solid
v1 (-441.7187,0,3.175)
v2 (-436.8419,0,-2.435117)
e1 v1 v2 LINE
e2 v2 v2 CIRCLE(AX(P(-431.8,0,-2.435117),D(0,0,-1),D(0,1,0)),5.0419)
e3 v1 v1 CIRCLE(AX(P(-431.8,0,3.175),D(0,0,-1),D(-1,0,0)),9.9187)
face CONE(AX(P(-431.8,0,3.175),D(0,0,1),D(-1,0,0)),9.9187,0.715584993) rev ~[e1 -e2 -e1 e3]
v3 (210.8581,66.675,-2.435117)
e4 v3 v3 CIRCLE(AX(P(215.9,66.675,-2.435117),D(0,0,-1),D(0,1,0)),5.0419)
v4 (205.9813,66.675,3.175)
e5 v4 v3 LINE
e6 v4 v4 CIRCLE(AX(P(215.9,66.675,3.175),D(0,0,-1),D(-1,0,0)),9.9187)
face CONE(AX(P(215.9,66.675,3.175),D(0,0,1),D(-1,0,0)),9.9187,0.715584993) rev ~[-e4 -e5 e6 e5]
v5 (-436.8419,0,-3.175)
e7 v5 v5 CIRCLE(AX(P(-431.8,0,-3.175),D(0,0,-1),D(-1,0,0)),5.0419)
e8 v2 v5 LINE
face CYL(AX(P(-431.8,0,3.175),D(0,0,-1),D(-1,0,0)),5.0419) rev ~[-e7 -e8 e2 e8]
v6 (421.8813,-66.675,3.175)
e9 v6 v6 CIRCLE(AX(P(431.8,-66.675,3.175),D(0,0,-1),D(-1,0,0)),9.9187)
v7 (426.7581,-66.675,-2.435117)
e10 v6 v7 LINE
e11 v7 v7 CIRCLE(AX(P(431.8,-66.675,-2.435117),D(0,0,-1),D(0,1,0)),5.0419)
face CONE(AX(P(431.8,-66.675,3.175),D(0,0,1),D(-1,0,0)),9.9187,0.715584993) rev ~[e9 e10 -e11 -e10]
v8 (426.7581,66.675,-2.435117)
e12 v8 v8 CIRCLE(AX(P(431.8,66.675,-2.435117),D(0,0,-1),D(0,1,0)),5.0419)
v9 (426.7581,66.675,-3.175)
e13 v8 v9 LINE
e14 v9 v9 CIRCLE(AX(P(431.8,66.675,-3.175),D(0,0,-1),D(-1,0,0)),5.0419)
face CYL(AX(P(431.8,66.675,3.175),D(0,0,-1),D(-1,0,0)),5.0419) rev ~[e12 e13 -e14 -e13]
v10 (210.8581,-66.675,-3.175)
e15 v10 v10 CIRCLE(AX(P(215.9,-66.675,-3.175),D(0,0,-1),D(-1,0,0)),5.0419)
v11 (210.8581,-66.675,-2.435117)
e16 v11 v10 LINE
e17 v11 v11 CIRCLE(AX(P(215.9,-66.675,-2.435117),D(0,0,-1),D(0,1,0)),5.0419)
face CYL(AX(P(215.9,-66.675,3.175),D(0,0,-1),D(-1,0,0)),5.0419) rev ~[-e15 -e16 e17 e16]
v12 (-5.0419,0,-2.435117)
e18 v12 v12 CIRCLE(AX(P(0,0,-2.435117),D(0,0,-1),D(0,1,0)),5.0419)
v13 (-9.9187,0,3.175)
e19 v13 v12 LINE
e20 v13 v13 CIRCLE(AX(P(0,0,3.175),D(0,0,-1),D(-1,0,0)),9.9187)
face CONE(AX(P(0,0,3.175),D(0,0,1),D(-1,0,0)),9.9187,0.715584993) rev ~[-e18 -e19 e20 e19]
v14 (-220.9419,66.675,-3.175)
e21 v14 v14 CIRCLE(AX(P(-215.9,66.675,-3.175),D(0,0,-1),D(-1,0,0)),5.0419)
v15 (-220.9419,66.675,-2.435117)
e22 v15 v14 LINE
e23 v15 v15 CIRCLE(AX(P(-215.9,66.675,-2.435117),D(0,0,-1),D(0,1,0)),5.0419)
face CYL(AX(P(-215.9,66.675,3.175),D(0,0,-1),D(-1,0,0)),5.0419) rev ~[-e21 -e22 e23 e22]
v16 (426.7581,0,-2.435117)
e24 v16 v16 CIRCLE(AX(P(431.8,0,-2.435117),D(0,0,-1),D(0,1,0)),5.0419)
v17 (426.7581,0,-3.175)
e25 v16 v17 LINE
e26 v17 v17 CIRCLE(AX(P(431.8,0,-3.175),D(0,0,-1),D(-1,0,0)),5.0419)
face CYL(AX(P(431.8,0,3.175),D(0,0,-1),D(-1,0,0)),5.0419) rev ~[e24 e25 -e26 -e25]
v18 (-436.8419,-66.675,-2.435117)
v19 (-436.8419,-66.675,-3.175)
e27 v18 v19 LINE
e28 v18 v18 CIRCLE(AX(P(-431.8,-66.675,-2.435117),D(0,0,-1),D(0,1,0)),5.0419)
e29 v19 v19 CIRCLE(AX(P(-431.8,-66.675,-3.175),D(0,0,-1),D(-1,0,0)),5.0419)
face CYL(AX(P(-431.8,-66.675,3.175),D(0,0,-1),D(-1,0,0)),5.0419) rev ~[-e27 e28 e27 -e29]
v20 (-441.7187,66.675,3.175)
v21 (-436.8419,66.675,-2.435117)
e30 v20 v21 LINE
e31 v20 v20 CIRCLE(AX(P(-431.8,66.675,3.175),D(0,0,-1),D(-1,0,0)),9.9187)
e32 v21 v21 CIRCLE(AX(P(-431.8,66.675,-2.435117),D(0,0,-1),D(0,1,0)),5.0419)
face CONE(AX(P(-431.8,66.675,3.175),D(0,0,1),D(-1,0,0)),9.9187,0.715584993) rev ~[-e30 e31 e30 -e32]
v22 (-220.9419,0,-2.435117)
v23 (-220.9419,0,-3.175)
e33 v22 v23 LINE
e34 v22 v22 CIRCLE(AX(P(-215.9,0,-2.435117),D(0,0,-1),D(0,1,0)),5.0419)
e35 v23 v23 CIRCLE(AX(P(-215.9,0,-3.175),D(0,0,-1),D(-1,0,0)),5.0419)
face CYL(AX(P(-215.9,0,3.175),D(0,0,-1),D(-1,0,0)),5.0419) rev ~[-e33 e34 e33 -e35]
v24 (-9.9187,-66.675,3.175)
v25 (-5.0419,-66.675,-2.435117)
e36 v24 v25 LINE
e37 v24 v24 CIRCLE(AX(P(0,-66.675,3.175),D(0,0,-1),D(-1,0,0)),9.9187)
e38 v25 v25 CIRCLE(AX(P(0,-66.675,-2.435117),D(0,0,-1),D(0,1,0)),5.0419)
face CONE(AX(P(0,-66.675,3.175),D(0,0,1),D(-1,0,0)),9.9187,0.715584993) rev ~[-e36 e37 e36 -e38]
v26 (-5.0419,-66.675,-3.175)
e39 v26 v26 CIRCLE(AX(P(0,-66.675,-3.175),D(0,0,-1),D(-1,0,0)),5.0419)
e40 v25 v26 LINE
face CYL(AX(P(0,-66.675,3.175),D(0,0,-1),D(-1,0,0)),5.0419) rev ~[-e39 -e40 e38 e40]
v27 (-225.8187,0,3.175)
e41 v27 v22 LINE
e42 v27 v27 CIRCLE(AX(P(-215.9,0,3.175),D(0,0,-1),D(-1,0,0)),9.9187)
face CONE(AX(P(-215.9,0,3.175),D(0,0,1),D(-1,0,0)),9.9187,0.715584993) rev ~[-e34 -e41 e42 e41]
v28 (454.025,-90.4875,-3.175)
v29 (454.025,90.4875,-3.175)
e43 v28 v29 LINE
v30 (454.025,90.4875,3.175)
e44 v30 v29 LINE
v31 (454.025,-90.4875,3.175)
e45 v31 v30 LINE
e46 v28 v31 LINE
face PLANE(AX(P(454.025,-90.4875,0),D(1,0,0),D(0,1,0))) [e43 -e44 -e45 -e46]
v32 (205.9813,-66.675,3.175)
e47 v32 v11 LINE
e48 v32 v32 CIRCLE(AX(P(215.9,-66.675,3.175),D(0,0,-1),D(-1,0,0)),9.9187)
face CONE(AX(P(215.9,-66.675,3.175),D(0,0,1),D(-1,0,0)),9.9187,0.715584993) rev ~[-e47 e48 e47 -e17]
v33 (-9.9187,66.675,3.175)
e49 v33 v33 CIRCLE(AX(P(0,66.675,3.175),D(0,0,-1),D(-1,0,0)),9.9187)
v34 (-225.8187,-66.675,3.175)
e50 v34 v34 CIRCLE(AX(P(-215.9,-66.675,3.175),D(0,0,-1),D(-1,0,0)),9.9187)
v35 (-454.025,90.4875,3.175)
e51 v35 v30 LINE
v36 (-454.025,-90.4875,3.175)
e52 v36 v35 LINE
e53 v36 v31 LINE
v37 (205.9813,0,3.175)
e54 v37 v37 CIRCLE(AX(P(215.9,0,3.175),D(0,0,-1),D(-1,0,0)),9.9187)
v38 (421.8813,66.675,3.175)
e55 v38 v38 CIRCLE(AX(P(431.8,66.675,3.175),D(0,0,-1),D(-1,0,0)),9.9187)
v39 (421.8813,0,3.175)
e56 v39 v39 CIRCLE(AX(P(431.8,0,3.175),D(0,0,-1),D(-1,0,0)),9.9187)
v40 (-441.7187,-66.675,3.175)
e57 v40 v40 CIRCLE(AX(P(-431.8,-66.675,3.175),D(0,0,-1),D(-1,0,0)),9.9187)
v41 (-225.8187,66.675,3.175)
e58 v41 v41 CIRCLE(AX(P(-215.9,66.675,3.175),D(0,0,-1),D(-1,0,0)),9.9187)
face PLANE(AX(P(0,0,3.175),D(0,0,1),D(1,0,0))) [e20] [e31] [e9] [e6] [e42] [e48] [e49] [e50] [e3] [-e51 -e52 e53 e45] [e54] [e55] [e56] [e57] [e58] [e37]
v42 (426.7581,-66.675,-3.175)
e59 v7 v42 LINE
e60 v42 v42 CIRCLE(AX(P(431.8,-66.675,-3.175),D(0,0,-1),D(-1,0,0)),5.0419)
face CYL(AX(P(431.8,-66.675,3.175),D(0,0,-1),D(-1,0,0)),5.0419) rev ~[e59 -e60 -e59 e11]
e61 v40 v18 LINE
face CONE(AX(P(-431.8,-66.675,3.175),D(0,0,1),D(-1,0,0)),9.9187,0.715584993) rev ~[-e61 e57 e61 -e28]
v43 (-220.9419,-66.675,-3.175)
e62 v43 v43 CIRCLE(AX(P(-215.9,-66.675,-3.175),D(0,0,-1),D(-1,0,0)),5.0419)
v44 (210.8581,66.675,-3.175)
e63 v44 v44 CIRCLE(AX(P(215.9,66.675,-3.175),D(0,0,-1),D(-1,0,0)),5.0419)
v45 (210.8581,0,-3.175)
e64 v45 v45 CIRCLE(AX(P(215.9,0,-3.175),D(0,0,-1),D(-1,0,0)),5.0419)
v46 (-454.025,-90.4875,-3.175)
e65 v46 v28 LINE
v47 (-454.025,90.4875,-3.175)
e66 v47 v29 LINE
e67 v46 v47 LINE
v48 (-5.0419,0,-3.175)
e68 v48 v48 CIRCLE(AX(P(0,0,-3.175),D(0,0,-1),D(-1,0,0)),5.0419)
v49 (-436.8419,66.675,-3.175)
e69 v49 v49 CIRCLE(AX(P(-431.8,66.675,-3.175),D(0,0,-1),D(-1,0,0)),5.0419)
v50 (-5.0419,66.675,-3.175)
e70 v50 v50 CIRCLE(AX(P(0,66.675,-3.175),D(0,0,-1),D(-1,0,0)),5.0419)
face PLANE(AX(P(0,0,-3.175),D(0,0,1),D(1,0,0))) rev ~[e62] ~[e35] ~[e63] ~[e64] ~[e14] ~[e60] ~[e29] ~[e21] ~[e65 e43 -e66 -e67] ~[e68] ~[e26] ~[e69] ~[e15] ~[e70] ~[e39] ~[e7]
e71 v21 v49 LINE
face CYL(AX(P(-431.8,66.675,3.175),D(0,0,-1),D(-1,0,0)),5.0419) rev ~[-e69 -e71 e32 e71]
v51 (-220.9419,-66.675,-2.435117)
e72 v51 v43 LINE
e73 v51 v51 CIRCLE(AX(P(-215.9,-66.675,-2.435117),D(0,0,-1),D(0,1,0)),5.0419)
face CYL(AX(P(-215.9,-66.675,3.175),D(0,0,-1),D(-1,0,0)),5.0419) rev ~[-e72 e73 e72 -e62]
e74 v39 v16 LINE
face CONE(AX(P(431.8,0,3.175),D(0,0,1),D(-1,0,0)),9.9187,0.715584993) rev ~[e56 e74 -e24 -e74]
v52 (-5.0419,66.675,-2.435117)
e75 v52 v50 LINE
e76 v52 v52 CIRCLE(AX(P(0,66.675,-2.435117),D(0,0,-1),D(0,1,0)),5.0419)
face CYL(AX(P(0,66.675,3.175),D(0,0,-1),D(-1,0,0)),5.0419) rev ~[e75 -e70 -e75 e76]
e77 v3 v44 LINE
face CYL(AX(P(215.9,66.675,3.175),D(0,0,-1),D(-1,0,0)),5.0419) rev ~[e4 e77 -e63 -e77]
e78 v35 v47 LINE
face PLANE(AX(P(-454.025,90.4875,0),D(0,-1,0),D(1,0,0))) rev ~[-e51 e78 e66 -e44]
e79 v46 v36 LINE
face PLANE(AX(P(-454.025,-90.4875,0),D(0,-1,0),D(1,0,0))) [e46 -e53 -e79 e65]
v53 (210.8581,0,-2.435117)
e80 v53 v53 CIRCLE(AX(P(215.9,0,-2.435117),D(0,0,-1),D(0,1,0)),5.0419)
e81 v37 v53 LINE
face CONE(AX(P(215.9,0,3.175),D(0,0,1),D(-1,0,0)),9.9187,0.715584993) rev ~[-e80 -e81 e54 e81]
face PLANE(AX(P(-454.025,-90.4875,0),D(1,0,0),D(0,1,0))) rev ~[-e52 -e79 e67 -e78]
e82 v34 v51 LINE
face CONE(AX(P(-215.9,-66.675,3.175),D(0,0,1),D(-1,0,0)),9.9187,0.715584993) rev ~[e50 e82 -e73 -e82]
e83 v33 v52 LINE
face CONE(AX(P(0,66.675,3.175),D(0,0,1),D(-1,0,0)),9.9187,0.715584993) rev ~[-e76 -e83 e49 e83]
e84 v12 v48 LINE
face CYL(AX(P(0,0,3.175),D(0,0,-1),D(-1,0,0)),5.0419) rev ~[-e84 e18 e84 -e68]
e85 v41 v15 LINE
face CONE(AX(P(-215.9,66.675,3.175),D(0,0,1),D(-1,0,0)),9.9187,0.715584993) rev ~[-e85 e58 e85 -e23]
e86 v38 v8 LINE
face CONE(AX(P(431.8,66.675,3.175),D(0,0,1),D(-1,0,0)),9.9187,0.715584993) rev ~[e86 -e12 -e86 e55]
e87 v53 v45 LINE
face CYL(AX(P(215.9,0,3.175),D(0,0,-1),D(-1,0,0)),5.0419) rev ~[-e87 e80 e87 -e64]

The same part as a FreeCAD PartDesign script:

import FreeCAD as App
import Part
import Sketcher
from FreeCAD import Vector
Q = App.Units.Quantity


def add_polygon(sketch, points):
    """Adds a closed chain of lines whose ends are joined by coincident constraints."""
    first, n = sketch.GeometryCount, len(points)
    for a, b in zip(points, points[1:] + points[:1]):
        sketch.addGeometry(Part.LineSegment(App.Vector(*a, 0), App.Vector(*b, 0)), False)
    for i in range(n):
        sketch.addConstraint(Sketcher.Constraint("Coincident", first + i, 2, first + (i + 1) % n, 1))

doc = App.newDocument("Part")
body = doc.addObject("PartDesign::Body", "Body")

# Sketch on XY plane
sketch1 = doc.addObject("Sketcher::SketchObject", "Sketch")
body.addObject(sketch1)
sketch1.AttachmentSupport = (doc.XY_Plane, [""])
sketch1.MapMode = "FlatFace"
add_polygon(sketch1, [(-454, 90), (-454, -90), (454, -90), (454, 90)])  # lines 0-3
sketch1.addConstraint(Sketcher.Constraint("Vertical", 0))
sketch1.addConstraint(Sketcher.Constraint("Horizontal", 1))
sketch1.addConstraint(Sketcher.Constraint("Vertical", 2))
sketch1.addConstraint(Sketcher.Constraint("Horizontal", 3))
sketch1.addConstraint(Sketcher.Constraint("Symmetric", 0, 2, 2, 2, -1, 1))
sketch1.addConstraint(Sketcher.Constraint("DistanceX", 1, 1, 1, 2, Q("35.75 in")))
sketch1.addConstraint(Sketcher.Constraint("DistanceY", 0, 2, 0, 1, Q("7.125 in")))
pad1 = doc.addObject("PartDesign::Pad", "Pad")
body.addObject(pad1)
pad1.Profile = sketch1
pad1.Length = Q("0.25 in")
pad1.Midplane = True

# Sketch on XY plane
sketch2 = doc.addObject("Sketcher::SketchObject", "Sketch001")
body.addObject(sketch2)
sketch2.AttachmentSupport = (doc.XY_Plane, [""])
sketch2.MapMode = "FlatFace"
sketch2.AttachmentOffset = App.Placement(Vector(0, 0, 0.125 * 25.4), App.Rotation())
sketch2.addGeometry(Part.Circle(Vector(-432, 67, 0), Vector(0, 0, 1), 5), False)
sketch2.addGeometry(Part.Circle(Vector(-432, 0, 0), Vector(0, 0, 1), 5), False)
sketch2.addGeometry(Part.Circle(Vector(-432, -67, 0), Vector(0, 0, 1), 5), False)
sketch2.addGeometry(Part.Circle(Vector(-216, -67, 0), Vector(0, 0, 1), 5), False)
sketch2.addGeometry(Part.Circle(Vector(-216, 0, 0), Vector(0, 0, 1), 5), False)
sketch2.addGeometry(Part.Circle(Vector(-216, 67, 0), Vector(0, 0, 1), 5), False)
sketch2.addGeometry(Part.Circle(Vector(0, 67, 0), Vector(0, 0, 1), 5), False)
sketch2.addGeometry(Part.Circle(Vector(0, 0, 0), Vector(0, 0, 1), 5), False)
sketch2.addGeometry(Part.Circle(Vector(0, -67, 0), Vector(0, 0, 1), 5), False)
sketch2.addGeometry(Part.Circle(Vector(216, -67, 0), Vector(0, 0, 1), 5), False)
sketch2.addGeometry(Part.Circle(Vector(216, 0, 0), Vector(0, 0, 1), 5), False)
sketch2.addGeometry(Part.Circle(Vector(216, 67, 0), Vector(0, 0, 1), 5), False)
sketch2.addGeometry(Part.Circle(Vector(432, 67, 0), Vector(0, 0, 1), 5), False)
sketch2.addGeometry(Part.Circle(Vector(432, 0, 0), Vector(0, 0, 1), 5), False)
sketch2.addGeometry(Part.Circle(Vector(432, -67, 0), Vector(0, 0, 1), 5), False)
sketch2.addConstraint(Sketcher.Constraint("Coincident", 7, 3, -1, 1))
sketch2.addConstraint(Sketcher.Constraint("Equal", 0, 1))
sketch2.addConstraint(Sketcher.Constraint("Equal", 1, 2))
sketch2.addConstraint(Sketcher.Constraint("Equal", 2, 3))
sketch2.addConstraint(Sketcher.Constraint("Equal", 3, 4))
sketch2.addConstraint(Sketcher.Constraint("Equal", 4, 5))
sketch2.addConstraint(Sketcher.Constraint("Equal", 5, 6))
sketch2.addConstraint(Sketcher.Constraint("Equal", 6, 7))
sketch2.addConstraint(Sketcher.Constraint("Equal", 7, 8))
sketch2.addConstraint(Sketcher.Constraint("Equal", 8, 9))
sketch2.addConstraint(Sketcher.Constraint("Equal", 9, 10))
sketch2.addConstraint(Sketcher.Constraint("Equal", 10, 11))
sketch2.addConstraint(Sketcher.Constraint("Equal", 11, 12))
sketch2.addConstraint(Sketcher.Constraint("Equal", 12, 13))
sketch2.addConstraint(Sketcher.Constraint("Equal", 13, 14))
sketch2.addConstraint(Sketcher.Constraint("Symmetric", 6, 3, 8, 3, -1, 1))
sketch2.addConstraint(Sketcher.Constraint("Symmetric", 5, 3, 9, 3, -1, 1))
sketch2.addConstraint(Sketcher.Constraint("Symmetric", 4, 3, 10, 3, -1, 1))
sketch2.addConstraint(Sketcher.Constraint("Symmetric", 3, 3, 11, 3, -1, 1))
sketch2.addConstraint(Sketcher.Constraint("Symmetric", 2, 3, 12, 3, -1, 1))
sketch2.addConstraint(Sketcher.Constraint("Symmetric", 1, 3, 13, 3, -1, 1))
sketch2.addConstraint(Sketcher.Constraint("Symmetric", 0, 3, 14, 3, -1, 1))
sketch2.addConstraint(Sketcher.Constraint("Symmetric", 3, 3, 9, 3, -2))
sketch2.addConstraint(Sketcher.Constraint("Symmetric", 0, 3, 12, 3, -2))
sketch2.addConstraint(Sketcher.Constraint("PointOnObject", 1, 3, -1))
sketch2.addConstraint(Sketcher.Constraint("PointOnObject", 4, 3, -1))
sketch2.addConstraint(Sketcher.Constraint("PointOnObject", 6, 3, -2))
sketch2.addConstraint(Sketcher.Constraint("Horizontal", 2, 3, 3, 3))
sketch2.addConstraint(Sketcher.Constraint("Horizontal", 5, 3, 6, 3))
sketch2.addConstraint(Sketcher.Constraint("Vertical", 0, 3, 1, 3))
sketch2.addConstraint(Sketcher.Constraint("Vertical", 3, 3, 4, 3))
sketch2.addConstraint(Sketcher.Constraint("Diameter", 0, Q("0.397 in")))
sketch2.addConstraint(Sketcher.Constraint("DistanceX", 0, 3, -1, 1, Q("17 in")))
sketch2.addConstraint(Sketcher.Constraint("DistanceX", 3, 3, 9, 3, Q("17 in")))
sketch2.addConstraint(Sketcher.Constraint("DistanceY", 2, 3, 0, 3, Q("5.25 in")))
doc.recompute()
hole = doc.addObject("PartDesign::Hole", "Hole")
body.addObject(hole)
hole.Profile = sketch2
hole.ThreadType = "None"
hole.Diameter = Q("0.397 in")
hole.DepthType = "ThroughAll"
hole.HoleCutType = "Countersink"
hole.HoleCutDiameter = Q("0.781 in")
hole.HoleCutCountersinkAngle = 82

doc.recompute()
